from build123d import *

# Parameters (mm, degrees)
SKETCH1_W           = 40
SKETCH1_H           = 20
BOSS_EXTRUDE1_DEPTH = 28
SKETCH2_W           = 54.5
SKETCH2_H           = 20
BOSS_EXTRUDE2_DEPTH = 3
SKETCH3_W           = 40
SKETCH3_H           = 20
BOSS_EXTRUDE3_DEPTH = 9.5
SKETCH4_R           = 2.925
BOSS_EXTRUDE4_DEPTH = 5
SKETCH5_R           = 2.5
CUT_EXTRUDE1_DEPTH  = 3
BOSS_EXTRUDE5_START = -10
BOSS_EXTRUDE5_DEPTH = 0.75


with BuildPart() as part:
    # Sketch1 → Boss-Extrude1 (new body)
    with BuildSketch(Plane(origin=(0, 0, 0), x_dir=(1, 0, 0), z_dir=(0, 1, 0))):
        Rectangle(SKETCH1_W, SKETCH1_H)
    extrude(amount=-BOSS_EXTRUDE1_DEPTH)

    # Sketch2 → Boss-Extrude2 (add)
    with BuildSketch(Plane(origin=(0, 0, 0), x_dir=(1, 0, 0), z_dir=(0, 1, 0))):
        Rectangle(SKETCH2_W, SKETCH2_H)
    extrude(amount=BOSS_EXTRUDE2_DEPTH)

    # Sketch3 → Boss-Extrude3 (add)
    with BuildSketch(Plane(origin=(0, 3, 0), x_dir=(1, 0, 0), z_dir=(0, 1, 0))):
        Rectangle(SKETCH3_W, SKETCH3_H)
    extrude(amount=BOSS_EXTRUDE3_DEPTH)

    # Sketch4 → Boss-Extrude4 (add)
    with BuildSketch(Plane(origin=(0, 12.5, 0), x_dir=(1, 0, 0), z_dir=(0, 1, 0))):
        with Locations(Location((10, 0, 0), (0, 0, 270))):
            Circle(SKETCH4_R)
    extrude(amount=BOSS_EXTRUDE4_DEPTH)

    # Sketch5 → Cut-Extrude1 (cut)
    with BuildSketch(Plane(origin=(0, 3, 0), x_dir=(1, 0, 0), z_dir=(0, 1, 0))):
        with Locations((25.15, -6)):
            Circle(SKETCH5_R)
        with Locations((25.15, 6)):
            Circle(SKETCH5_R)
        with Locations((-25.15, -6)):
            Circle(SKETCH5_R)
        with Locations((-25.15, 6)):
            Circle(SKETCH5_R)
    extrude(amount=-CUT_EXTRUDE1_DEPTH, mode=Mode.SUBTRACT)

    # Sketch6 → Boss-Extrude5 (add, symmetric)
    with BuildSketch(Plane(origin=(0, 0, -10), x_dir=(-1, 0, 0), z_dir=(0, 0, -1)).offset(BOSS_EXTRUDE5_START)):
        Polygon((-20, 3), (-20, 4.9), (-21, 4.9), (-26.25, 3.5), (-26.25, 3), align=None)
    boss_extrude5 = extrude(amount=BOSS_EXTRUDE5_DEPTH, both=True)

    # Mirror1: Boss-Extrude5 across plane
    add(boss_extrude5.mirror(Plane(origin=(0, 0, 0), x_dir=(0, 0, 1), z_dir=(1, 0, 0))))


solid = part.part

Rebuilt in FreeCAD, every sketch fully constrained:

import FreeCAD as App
import Part
import Sketcher

V = App.Vector
Q = App.Units.Quantity


def add_polygon(sketch, points):
    """Adds a closed chain of lines whose ends are joined by coincident constraints."""
    first, n = sketch.GeometryCount, len(points)
    for a, b in zip(points, points[1:] + points[:1]):
        sketch.addGeometry(Part.LineSegment(App.Vector(*a, 0), App.Vector(*b, 0)), False)
    for i in range(n):
        sketch.addConstraint(Sketcher.Constraint("Coincident", first + i, 2, first + (i + 1) % n, 1))

doc = App.newDocument("Part")
params = doc.addObject("Spreadsheet::Sheet", "Params")
for row, (alias, value) in enumerate([
    ("sketch1_width", "40 mm"),
    ("sketch1_height", "20 mm"),
    ("pad1_length", "28 mm"),
    ("sketch2_height", "20 mm"),
    ("sketch2_width", "54.5 mm"),
    ("pad2_length", "3 mm"),
    ("sketch3_width", "40 mm"),
    ("sketch3_height", "20 mm"),
    ("pad3_length", "9.5 mm"),
    ("sketch4_diameter", "5.85 mm"),
    ("pad4_length", "5 mm"),
    ("sketch5_diameter", "5 mm"),
    ("pocket1_length", "3 mm"),
    ("sketch6_width", "1 mm"),
    ("sketch6_height", "1.9 mm"),
    ("sketch6_height2", "0.5 mm"),
    ("sketch6_width2", "6.25 mm"),
    ("pad5_length", "1.5 mm"),
], start=1):
    params.set(f"A{row}", alias)
    params.set(f"B{row}", "=" + value)
    params.setAlias(f"B{row}", alias)

body = doc.addObject("PartDesign::Body", "Body")

# Sketch on XZ plane
sketch1 = body.newObject("Sketcher::SketchObject", "Sketch")
sketch1.AttachmentSupport = (doc.getObject("XZ_Plane"), [""])
sketch1.MapMode = "FlatFace"
add_polygon(sketch1, [(-20, -10), (-20, 10), (20, 10), (20, -10)])  # lines 0-3
sketch1.addConstraint(Sketcher.Constraint("Vertical", 0))
sketch1.addConstraint(Sketcher.Constraint("Horizontal", 1))
sketch1.addConstraint(Sketcher.Constraint("Vertical", 2))
sketch1.addConstraint(Sketcher.Constraint("Horizontal", 3))
sketch1.addConstraint(Sketcher.Constraint("Symmetric", 0, 2, 2, 2, -1, 1))
sketch1.addConstraint(Sketcher.Constraint("DistanceX", 1, 1, 1, 2, Q("40 mm")))
sketch1.addConstraint(Sketcher.Constraint("DistanceY", 0, 1, 0, 2, Q("20 mm")))
sketch1.setExpression("Constraints[9]", "Params.sketch1_width")
sketch1.setExpression("Constraints[10]", "Params.sketch1_height")
pad1 = body.newObject("PartDesign::Pad", "Pad")
pad1.Profile = sketch1
pad1.setExpression("Length", "Params.pad1_length")

# Sketch on XZ plane
sketch2 = body.newObject("Sketcher::SketchObject", "Sketch001")
sketch2.AttachmentSupport = (doc.getObject("XZ_Plane"), [""])
sketch2.MapMode = "FlatFace"
add_polygon(sketch2, [(-27, -10), (-27, 10), (27, 10), (27, -10)])  # lines 0-3
sketch2.addConstraint(Sketcher.Constraint("Vertical", 0))
sketch2.addConstraint(Sketcher.Constraint("Horizontal", 1))
sketch2.addConstraint(Sketcher.Constraint("Vertical", 2))
sketch2.addConstraint(Sketcher.Constraint("Horizontal", 3))
sketch2.addConstraint(Sketcher.Constraint("Symmetric", 0, 2, 2, 2, -1, 1))
sketch2.addConstraint(Sketcher.Constraint("DistanceY", 0, 1, 0, 2, Q("20 mm")))
sketch2.addConstraint(Sketcher.Constraint("DistanceX", 1, 1, 1, 2, Q("54.5 mm")))
sketch2.setExpression("Constraints[9]", "Params.sketch2_height")
sketch2.setExpression("Constraints[10]", "Params.sketch2_width")
pad2 = body.newObject("PartDesign::Pad", "Pad001")
pad2.Profile = sketch2
pad2.setExpression("Length", "Params.pad2_length")
pad2.Reversed = True

# Sketch on XZ plane
sketch3 = body.newObject("Sketcher::SketchObject", "Sketch002")
sketch3.AttachmentSupport = (doc.getObject("XZ_Plane"), [""])
sketch3.MapMode = "FlatFace"
sketch3.AttachmentOffset = App.Placement(V(0, 0, -3), App.Rotation())
add_polygon(sketch3, [(-20, -10), (-20, 10), (20, 10), (20, -10)])  # lines 0-3
sketch3.addConstraint(Sketcher.Constraint("Vertical", 0))
sketch3.addConstraint(Sketcher.Constraint("Horizontal", 1))
sketch3.addConstraint(Sketcher.Constraint("Vertical", 2))
sketch3.addConstraint(Sketcher.Constraint("Horizontal", 3))
sketch3.addConstraint(Sketcher.Constraint("Symmetric", 0, 2, 2, 2, -1, 1))
sketch3.addConstraint(Sketcher.Constraint("DistanceX", 1, 1, 1, 2, Q("40 mm")))
sketch3.addConstraint(Sketcher.Constraint("DistanceY", 0, 1, 0, 2, Q("20 mm")))
sketch3.setExpression("Constraints[9]", "Params.sketch3_width")
sketch3.setExpression("Constraints[10]", "Params.sketch3_height")
pad3 = body.newObject("PartDesign::Pad", "Pad002")
pad3.Profile = sketch3
pad3.setExpression("Length", "Params.pad3_length")
pad3.Reversed = True

# Sketch on XZ plane
sketch4 = body.newObject("Sketcher::SketchObject", "Sketch003")
sketch4.AttachmentSupport = (doc.getObject("XZ_Plane"), [""])
sketch4.MapMode = "FlatFace"
sketch4.AttachmentOffset = App.Placement(V(0, 0, -12.5), App.Rotation())
sketch4.addGeometry(Part.Circle(V(10, 0, 0), V(0, 0, 1), 2.9), False)
sketch4.addConstraint(Sketcher.Constraint("PointOnObject", 0, 3, -1))
sketch4.addConstraint(Sketcher.Constraint("Diameter", 0, Q("5.85 mm")))
sketch4.addConstraint(Sketcher.Constraint("DistanceX", -1, 1, 0, 3, Q("10 mm")))
sketch4.setExpression("Constraints[1]", "Params.sketch4_diameter")
pad4 = body.newObject("PartDesign::Pad", "Pad003")
pad4.Profile = sketch4
pad4.setExpression("Length", "Params.pad4_length")
pad4.Reversed = True

# Sketch on XZ plane
sketch5 = body.newObject("Sketcher::SketchObject", "Sketch004")
sketch5.AttachmentSupport = (doc.getObject("XZ_Plane"), [""])
sketch5.MapMode = "FlatFace"
sketch5.AttachmentOffset = App.Placement(V(0, 0, -3), App.Rotation())
sketch5.addGeometry(Part.Circle(V(25.1, 6, 0), V(0, 0, 1), 2.5), False)
sketch5.addGeometry(Part.Circle(V(25.1, -6, 0), V(0, 0, 1), 2.5), False)
sketch5.addGeometry(Part.Circle(V(-25.1, 6, 0), V(0, 0, 1), 2.5), False)
sketch5.addGeometry(Part.Circle(V(-25.1, -6, 0), V(0, 0, 1), 2.5), False)
sketch5.addConstraint(Sketcher.Constraint("Equal", 0, 1))
sketch5.addConstraint(Sketcher.Constraint("Equal", 1, 2))
sketch5.addConstraint(Sketcher.Constraint("Equal", 2, 3))
sketch5.addConstraint(Sketcher.Constraint("Symmetric", 1, 3, 2, 3, -1, 1))
sketch5.addConstraint(Sketcher.Constraint("Symmetric", 0, 3, 3, 3, -1, 1))
sketch5.addConstraint(Sketcher.Constraint("Symmetric", 0, 3, 2, 3, -2))
sketch5.addConstraint(Sketcher.Constraint("Diameter", 0, Q("5 mm")))
sketch5.addConstraint(Sketcher.Constraint("DistanceY", -1, 1, 0, 3, Q("6 mm")))
sketch5.addConstraint(Sketcher.Constraint("DistanceX", 2, 3, 0, 3, Q("50.3 mm")))
sketch5.setExpression("Constraints[6]", "Params.sketch5_diameter")
pocket1 = body.newObject("PartDesign::Pocket", "Pocket")
pocket1.Profile = sketch5
pocket1.setExpression("Length", "Params.pocket1_length")
pocket1.Reversed = True

# Sketch on XY plane
sketch6 = body.newObject("Sketcher::SketchObject", "Sketch005")
sketch6.AttachmentSupport = (doc.getObject("XY_Plane"), [""])
sketch6.MapMode = "FlatFace"
add_polygon(sketch6, [(20, 3), (20, 4.9), (21, 4.9), (26.2, 3.5), (26.2, 3)])  # lines 0-4
sketch6.addConstraint(Sketcher.Constraint("Vertical", 0))
sketch6.addConstraint(Sketcher.Constraint("Horizontal", 1))
sketch6.addConstraint(Sketcher.Constraint("Vertical", 3))
sketch6.addConstraint(Sketcher.Constraint("Horizontal", 4))
sketch6.addConstraint(Sketcher.Constraint("DistanceX", 1, 1, 1, 2, Q("1 mm")))
sketch6.addConstraint(Sketcher.Constraint("DistanceY", 0, 1, 0, 2, Q("1.9 mm")))
sketch6.addConstraint(Sketcher.Constraint("DistanceY", 3, 2, 3, 1, Q("0.5 mm")))
sketch6.addConstraint(Sketcher.Constraint("DistanceX", -1, 1, 0, 2, Q("20 mm")))
sketch6.addConstraint(Sketcher.Constraint("DistanceY", -1, 1, 3, 2, Q("3 mm")))
sketch6.addConstraint(Sketcher.Constraint("DistanceX", 4, 2, 4, 1, Q("6.25 mm")))
sketch6.setExpression("Constraints[9]", "Params.sketch6_width")
sketch6.setExpression("Constraints[10]", "Params.sketch6_height")
sketch6.setExpression("Constraints[11]", "Params.sketch6_height2")
sketch6.setExpression("Constraints[14]", "Params.sketch6_width2")
pad5 = body.newObject("PartDesign::Pad", "Pad004")
pad5.Profile = sketch6
pad5.setExpression("Length", "Params.pad5_length")
pad5.Midplane = True
doc.recompute()

mirrored = body.newObject("PartDesign::Mirrored", "Mirrored")
mirrored.Originals = [pad5]
mirrored.MirrorPlane = (doc.getObject("YZ_Plane"), [""])
body.Tip = mirrored

doc.recompute()
